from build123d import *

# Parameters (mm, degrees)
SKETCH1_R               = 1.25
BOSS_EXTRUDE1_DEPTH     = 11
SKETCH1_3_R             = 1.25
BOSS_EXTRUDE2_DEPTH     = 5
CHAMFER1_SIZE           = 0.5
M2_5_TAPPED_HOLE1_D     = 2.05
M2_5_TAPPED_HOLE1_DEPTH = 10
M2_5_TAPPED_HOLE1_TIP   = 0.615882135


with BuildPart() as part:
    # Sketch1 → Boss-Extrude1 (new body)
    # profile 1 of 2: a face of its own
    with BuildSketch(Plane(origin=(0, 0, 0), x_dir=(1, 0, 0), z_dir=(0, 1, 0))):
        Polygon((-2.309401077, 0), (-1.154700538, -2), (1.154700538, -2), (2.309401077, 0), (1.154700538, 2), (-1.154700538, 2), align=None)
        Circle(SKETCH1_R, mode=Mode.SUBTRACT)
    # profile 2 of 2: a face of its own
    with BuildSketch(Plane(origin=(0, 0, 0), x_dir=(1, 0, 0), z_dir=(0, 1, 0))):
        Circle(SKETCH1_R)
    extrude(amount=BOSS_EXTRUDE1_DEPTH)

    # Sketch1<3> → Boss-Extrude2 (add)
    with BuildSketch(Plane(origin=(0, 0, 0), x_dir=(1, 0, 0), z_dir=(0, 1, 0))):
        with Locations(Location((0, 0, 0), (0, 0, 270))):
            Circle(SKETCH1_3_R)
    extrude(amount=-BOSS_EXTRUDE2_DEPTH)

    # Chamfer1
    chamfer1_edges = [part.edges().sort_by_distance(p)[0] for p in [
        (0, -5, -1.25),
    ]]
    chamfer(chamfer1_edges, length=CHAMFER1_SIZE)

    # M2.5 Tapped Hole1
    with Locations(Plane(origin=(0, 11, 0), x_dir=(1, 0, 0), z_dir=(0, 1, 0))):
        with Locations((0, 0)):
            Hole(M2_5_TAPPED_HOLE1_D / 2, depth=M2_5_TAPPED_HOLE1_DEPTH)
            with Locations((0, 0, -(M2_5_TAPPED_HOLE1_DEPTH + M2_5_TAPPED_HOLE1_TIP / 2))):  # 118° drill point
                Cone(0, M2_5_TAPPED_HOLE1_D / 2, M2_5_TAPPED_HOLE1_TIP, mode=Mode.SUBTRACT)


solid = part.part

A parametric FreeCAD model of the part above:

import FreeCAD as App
import Part
import Sketcher
Q = App.Units.Quantity


def edges_at(feature, points):
    """Names of the edges that pass closest to the given points."""
    edges = feature.Shape.Edges
    near = lambda p: min(range(len(edges)), key=lambda i: edges[i].distToShape(Part.Vertex(*p))[0])
    return sorted({f"Edge{near(p) + 1}" for p in points})


def add_polygon(sketch, points):
    """Adds a closed chain of lines whose ends are joined by coincident constraints."""
    first, n = sketch.GeometryCount, len(points)
    for a, b in zip(points, points[1:] + points[:1]):
        sketch.addGeometry(Part.LineSegment(App.Vector(*a, 0), App.Vector(*b, 0)), False)
    for i in range(n):
        sketch.addConstraint(Sketcher.Constraint("Coincident", first + i, 2, first + (i + 1) % n, 1))

doc = App.newDocument("Part")
params = doc.addObject("Spreadsheet::Sheet", "Params")
for row, (alias, value) in enumerate([
    ("pad1_length", "11 mm"),
    ("sketch2_diameter", "2.5 mm"),
    ("pad2_length", "5 mm"),
    ("chamfer_size", "0.5 mm"),
    ("sketch3_diameter", "2.05 mm"),
    ("hole_diameter", "2.05 mm"),
    ("hole_depth", "10 mm"),
], start=1):
    params.set(f"A{row}", alias)
    params.set(f"B{row}", "=" + value)
    params.setAlias(f"B{row}", alias)

body = doc.addObject("PartDesign::Body", "Body")

sketch1 = doc.addObject("Sketcher::SketchObject", "Sketch")
body.addObject(sketch1)
sketch1.AttachmentSupport = (doc.XZ_Plane, [""])
sketch1.MapMode = "FlatFace"
add_polygon(sketch1, [(-2.3, 0), (-1.2, 2), (1.2, 2), (2.3, 0), (1.2, -2), (-1.2, -2)])
sketch1.addConstraint([
    Sketcher.Constraint("Horizontal", 1),
    Sketcher.Constraint("Horizontal", 4),
    Sketcher.Constraint("Symmetric", 0, 2, 3, 2, -1, 1),
    Sketcher.Constraint("Symmetric", 2, 2, 5, 2, -1, 1),
    Sketcher.Constraint("PointOnObject", 2, 2, -1),
    Sketcher.Constraint("Parallel", 2, 5),
    Sketcher.Constraint("Vertical", 1, 2, 3, 2),
    Sketcher.Constraint("Angle", 0, Q("60 deg")),
    Sketcher.Constraint("DistanceY", -1, 1, 0, 2, Q("2 mm")),
    Sketcher.Constraint("DistanceX", 1, 1, 1, 2, Q("2.309401 mm")),
])
pad1 = doc.addObject("PartDesign::Pad", "Pad")
body.addObject(pad1)
pad1.Profile = sketch1
pad1.setExpression("Length", "Params.pad1_length")
pad1.Reversed = True

sketch2 = doc.addObject("Sketcher::SketchObject", "Sketch001")
body.addObject(sketch2)
sketch2.AttachmentSupport = (doc.XZ_Plane, [""])
sketch2.MapMode = "FlatFace"
sketch2.addGeometry(Part.Circle(App.Vector(0, 0, 0), App.Vector(0, 0, 1), 1.2), False)
sketch2.addConstraint([
    Sketcher.Constraint("Coincident", 0, 3, -1, 1),
    Sketcher.Constraint("Diameter", 0, Q("2.5 mm")),
])
sketch2.setExpression("Constraints[1]", "Params.sketch2_diameter")
pad2 = doc.addObject("PartDesign::Pad", "Pad001")
body.addObject(pad2)
pad2.Profile = sketch2
pad2.setExpression("Length", "Params.pad2_length")
doc.recompute()

chamfer = doc.addObject("PartDesign::Chamfer", "Chamfer")
body.addObject(chamfer)
chamfer.Base = (pad2, edges_at(pad2, [(0, -5, -1.25)]))
chamfer.setExpression("Size", "Params.chamfer_size")

sketch3 = doc.addObject("Sketcher::SketchObject", "Sketch002")
body.addObject(sketch3)
sketch3.AttachmentSupport = (doc.XZ_Plane, [""])
sketch3.MapMode = "FlatFace"
sketch3.AttachmentOffset = App.Placement(App.Vector(0, 0, -11), App.Rotation())
sketch3.addGeometry(Part.Circle(App.Vector(0, 0, 0), App.Vector(0, 0, 1), 1), False)
sketch3.addConstraint([
    Sketcher.Constraint("Coincident", 0, 3, -1, 1),
    Sketcher.Constraint("Diameter", 0, Q("2.05 mm")),
])
sketch3.setExpression("Constraints[1]", "Params.sketch3_diameter")
doc.recompute()
hole = doc.addObject("PartDesign::Hole", "Hole")
body.addObject(hole)
hole.Profile = sketch3
hole.ThreadType = "None"
hole.setExpression("Diameter", "Params.hole_diameter")
hole.DepthType = "Dimension"
hole.setExpression("Depth", "Params.hole_depth")
hole.DrillPoint = "Angled"
hole.DrillPointAngle = 118
hole.Reversed = True

doc.recompute()
